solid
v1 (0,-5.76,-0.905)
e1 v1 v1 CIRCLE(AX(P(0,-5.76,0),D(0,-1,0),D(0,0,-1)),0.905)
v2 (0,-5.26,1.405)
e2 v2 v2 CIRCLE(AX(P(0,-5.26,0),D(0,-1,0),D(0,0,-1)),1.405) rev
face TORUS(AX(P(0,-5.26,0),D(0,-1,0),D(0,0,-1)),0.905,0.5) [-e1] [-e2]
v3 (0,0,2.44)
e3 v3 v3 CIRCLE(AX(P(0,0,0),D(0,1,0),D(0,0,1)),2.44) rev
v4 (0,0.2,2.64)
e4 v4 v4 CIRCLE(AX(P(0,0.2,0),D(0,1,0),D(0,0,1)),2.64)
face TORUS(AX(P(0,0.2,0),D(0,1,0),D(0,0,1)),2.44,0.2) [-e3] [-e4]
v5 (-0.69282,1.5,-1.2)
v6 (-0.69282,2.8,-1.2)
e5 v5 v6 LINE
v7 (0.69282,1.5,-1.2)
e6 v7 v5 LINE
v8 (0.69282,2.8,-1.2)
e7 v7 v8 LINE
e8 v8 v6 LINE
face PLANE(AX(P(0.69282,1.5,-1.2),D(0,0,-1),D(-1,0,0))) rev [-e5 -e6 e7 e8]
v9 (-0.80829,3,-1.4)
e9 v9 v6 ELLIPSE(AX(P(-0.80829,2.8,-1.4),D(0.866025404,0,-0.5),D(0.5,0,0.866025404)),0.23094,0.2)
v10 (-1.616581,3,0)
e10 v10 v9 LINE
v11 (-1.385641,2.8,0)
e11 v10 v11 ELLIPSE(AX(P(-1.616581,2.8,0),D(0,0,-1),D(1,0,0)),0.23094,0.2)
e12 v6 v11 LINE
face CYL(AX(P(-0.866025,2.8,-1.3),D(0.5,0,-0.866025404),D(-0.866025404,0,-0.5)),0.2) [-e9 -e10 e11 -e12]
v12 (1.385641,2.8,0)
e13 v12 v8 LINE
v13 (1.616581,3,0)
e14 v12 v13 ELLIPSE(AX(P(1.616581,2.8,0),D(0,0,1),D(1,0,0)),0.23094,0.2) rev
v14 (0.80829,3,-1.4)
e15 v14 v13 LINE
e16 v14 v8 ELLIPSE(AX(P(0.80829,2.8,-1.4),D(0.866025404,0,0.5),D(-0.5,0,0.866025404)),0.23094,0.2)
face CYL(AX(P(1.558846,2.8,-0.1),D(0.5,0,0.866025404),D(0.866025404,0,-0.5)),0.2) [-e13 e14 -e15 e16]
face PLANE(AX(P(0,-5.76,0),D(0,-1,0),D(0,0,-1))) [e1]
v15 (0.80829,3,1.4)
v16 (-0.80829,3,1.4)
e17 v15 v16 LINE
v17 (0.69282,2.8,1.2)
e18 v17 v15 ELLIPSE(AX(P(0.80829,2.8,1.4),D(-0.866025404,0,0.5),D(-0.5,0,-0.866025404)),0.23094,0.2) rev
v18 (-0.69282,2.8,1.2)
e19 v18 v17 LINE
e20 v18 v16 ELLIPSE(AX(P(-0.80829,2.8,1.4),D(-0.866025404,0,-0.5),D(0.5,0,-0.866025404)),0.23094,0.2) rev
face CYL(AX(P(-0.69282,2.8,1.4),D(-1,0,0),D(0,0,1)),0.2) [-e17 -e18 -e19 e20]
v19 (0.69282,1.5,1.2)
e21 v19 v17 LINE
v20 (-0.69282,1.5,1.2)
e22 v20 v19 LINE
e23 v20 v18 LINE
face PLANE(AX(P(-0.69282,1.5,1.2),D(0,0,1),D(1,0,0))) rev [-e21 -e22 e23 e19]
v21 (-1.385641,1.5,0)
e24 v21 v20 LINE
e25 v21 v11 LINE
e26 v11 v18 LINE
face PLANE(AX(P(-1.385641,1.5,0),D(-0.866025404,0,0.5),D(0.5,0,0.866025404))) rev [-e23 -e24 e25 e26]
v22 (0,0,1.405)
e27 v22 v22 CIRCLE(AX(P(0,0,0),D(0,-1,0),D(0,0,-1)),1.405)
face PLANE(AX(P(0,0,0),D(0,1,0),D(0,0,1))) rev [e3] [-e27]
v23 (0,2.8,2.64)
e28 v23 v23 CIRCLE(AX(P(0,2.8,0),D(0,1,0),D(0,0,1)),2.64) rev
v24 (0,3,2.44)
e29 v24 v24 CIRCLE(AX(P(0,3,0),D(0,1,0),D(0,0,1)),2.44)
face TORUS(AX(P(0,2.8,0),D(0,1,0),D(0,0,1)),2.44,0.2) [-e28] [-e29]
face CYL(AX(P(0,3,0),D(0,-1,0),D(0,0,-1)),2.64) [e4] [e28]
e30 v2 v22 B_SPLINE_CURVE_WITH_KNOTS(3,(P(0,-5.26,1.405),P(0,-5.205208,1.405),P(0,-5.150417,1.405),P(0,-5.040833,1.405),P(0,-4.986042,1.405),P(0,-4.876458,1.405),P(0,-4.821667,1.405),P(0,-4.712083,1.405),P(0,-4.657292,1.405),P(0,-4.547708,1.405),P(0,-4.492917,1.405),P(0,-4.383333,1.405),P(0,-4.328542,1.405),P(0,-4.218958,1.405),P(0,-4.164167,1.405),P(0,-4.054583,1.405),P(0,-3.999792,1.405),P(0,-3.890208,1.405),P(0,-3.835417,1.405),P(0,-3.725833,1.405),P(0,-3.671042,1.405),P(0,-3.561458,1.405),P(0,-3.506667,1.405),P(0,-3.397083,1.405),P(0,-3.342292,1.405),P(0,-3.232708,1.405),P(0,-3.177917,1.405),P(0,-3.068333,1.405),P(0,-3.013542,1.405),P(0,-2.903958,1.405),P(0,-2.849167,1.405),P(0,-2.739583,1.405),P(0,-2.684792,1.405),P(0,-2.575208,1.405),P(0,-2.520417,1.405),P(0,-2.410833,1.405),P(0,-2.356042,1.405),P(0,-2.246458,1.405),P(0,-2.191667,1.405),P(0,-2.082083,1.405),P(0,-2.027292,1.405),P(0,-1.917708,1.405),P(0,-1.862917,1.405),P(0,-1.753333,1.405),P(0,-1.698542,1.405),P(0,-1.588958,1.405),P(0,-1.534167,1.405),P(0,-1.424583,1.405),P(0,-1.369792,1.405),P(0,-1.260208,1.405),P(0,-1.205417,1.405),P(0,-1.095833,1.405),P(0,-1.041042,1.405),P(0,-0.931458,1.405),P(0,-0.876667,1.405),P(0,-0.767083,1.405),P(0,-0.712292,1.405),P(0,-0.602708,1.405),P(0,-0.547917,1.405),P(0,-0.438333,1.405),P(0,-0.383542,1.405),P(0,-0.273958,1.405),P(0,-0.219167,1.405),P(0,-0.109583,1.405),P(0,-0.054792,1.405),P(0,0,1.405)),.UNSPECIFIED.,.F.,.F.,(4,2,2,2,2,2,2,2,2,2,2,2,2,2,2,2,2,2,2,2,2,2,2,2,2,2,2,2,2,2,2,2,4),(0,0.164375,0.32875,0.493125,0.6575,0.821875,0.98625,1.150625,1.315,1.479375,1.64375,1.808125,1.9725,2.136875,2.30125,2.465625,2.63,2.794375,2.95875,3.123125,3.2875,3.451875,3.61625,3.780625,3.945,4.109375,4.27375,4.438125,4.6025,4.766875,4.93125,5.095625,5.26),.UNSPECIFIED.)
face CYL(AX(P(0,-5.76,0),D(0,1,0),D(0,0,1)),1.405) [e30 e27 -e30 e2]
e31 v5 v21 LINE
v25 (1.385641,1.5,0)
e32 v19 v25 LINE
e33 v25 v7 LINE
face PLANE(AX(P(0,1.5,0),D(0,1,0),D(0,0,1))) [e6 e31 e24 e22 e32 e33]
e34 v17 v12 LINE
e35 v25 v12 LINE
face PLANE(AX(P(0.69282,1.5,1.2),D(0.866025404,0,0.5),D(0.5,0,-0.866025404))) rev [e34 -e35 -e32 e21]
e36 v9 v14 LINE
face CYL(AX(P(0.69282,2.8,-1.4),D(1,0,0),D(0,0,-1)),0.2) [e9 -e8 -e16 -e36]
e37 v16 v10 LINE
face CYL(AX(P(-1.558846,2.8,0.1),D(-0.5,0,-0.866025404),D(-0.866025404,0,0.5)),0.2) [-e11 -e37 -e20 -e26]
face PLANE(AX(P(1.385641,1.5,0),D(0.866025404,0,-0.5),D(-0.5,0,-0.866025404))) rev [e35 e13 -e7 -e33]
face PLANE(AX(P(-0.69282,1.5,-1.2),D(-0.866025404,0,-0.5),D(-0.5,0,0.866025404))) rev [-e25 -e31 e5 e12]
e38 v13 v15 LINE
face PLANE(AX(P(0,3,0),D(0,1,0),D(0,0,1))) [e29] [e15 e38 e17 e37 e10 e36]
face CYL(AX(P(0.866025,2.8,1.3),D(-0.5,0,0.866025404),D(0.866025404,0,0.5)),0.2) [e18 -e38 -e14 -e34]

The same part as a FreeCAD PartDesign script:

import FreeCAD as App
import Part
import Sketcher

V = App.Vector
Q = App.Units.Quantity


def edges_at(feature, points):
    """Names of the edges that pass closest to the given points."""
    edges = feature.Shape.Edges
    near = lambda p: min(range(len(edges)), key=lambda i: edges[i].distToShape(Part.Vertex(*p))[0])
    return sorted({f"Edge{near(p) + 1}" for p in points})


def add_polygon(sketch, points):
    """Adds a closed chain of lines whose ends are joined by coincident constraints."""
    first, n = sketch.GeometryCount, len(points)
    for a, b in zip(points, points[1:] + points[:1]):
        sketch.addGeometry(Part.LineSegment(App.Vector(*a, 0), App.Vector(*b, 0)), False)
    for i in range(n):
        sketch.addConstraint(Sketcher.Constraint("Coincident", first + i, 2, first + (i + 1) % n, 1))

doc = App.newDocument("Part")
body = doc.addObject("PartDesign::Body", "Body")

# Sketch on XZ plane
sketch1 = doc.addObject("Sketcher::SketchObject", "Sketch")
body.addObject(sketch1)
sketch1.AttachmentSupport = (doc.XZ_Plane, [""])
sketch1.MapMode = "FlatFace"
sketch1.addGeometry(Part.Circle(V(0, 0, 0), V(0, 0, 1), 2.6), False)
sketch1.addConstraint([
    Sketcher.Constraint("Coincident", 0, 3, -1, 1),
    Sketcher.Constraint("Diameter", 0, 5.28),
])
pad1 = doc.addObject("PartDesign::Pad", "Pad")
body.addObject(pad1)
pad1.Profile = sketch1
pad1.Length = 3
pad1.Reversed = True

# Sketch on XZ plane
sketch2 = doc.addObject("Sketcher::SketchObject", "Sketch001")
body.addObject(sketch2)
sketch2.AttachmentSupport = (doc.XZ_Plane, [""])
sketch2.MapMode = "FlatFace"
sketch2.addGeometry(Part.Circle(V(0, 0, 0), V(0, 0, 1), 1.4), False)
sketch2.addConstraint([
    Sketcher.Constraint("Coincident", 0, 3, -1, 1),
    Sketcher.Constraint("Diameter", 0, 2.81),
])
pad2 = doc.addObject("PartDesign::Pad", "Pad001")
body.addObject(pad2)
pad2.Profile = sketch2
pad2.Length = 5.76
doc.recompute()

fillet = doc.addObject("PartDesign::Fillet", "Fillet")
body.addObject(fillet)
fillet.Base = (pad2, edges_at(pad2, [(0, 0, -2.64), (0, 3, -2.64)]))
fillet.Radius = 0.2

# Sketch on XZ plane
sketch3 = doc.addObject("Sketcher::SketchObject", "Sketch002")
body.addObject(sketch3)
sketch3.AttachmentSupport = (doc.XZ_Plane, [""])
sketch3.MapMode = "FlatFace"
sketch3.AttachmentOffset = App.Placement(V(0, 0, -3), App.Rotation())
add_polygon(sketch3, [(1.4, 0), (0.7, -1.2), (-0.7, -1.2), (-1.4, 0), (-0.7, 1.2), (0.7, 1.2)])  # lines 0-5
sketch3.addConstraint([
    Sketcher.Constraint("Horizontal", 1),
    Sketcher.Constraint("Horizontal", 4),
    Sketcher.Constraint("Symmetric", 0, 2, 3, 2, -1, 1),
    Sketcher.Constraint("Symmetric", 2, 2, 5, 2, -1, 1),
    Sketcher.Constraint("PointOnObject", 2, 2, -1),
    Sketcher.Constraint("Parallel", 2, 5),
    Sketcher.Constraint("Vertical", 1, 2, 3, 2),
    Sketcher.Constraint("Angle", 0, Q("-120 deg")),
    Sketcher.Constraint("DistanceY", 0, 2, -1, 1, 1.2),
    Sketcher.Constraint("DistanceX", 1, 2, 1, 1, 1.385641),
])
pocket1 = doc.addObject("PartDesign::Pocket", "Pocket")
body.addObject(pocket1)
pocket1.Profile = sketch3
pocket1.Length = 1.5
pocket1.Reversed = True
doc.recompute()

fillet2 = doc.addObject("PartDesign::Fillet", "Fillet001")
body.addObject(fillet2)
fillet2.Base = (pocket1, edges_at(pocket1, [
    (1.039, 3, 0.6),
    (1.039, 3, -0.6),
    (0, 3, -1.2),
    (-1.039, 3, -0.6),
    (-1.039, 3, 0.6),
    (0, 3, 1.2),
]))
fillet2.Radius = 0.2
doc.recompute()

fillet3 = doc.addObject("PartDesign::Fillet", "Fillet002")
body.addObject(fillet3)
fillet3.Base = (fillet2, edges_at(fillet2, [(0, -5.76, -1.405)]))
fillet3.Radius = 0.5

doc.recompute()
